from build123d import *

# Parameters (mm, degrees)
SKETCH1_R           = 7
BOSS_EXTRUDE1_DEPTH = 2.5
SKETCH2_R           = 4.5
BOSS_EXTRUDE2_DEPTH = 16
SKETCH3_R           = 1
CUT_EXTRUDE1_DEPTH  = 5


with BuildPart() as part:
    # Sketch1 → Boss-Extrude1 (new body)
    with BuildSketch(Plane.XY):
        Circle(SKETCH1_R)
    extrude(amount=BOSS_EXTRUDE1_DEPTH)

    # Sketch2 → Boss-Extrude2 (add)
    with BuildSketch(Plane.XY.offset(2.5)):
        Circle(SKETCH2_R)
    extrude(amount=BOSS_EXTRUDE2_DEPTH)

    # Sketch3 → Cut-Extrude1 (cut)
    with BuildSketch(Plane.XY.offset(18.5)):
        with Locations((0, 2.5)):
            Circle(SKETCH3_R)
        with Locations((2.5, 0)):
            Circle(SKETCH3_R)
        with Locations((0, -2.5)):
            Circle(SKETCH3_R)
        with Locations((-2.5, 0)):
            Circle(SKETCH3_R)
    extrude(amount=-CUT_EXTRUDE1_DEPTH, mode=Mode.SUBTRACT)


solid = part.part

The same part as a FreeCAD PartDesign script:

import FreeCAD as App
import Part
import Sketcher

V = App.Vector

doc = App.newDocument("Part")
params = doc.addObject("Spreadsheet::Sheet", "Params")
for row, (alias, value) in enumerate([
    ("sketch1_diameter", "14 mm"),
    ("pad1_length", "2.5 mm"),
    ("sketch2_diameter", "9 mm"),
    ("pad2_length", "16 mm"),
    ("sketch3_diameter", "2 mm"),
    ("pocket1_length", "5 mm"),
], start=1):
    params.set(f"A{row}", alias)
    params.set(f"B{row}", "=" + value)
    params.setAlias(f"B{row}", alias)

body = doc.addObject("PartDesign::Body", "Body")

sketch1 = body.newObject("Sketcher::SketchObject", "Sketch")
sketch1.AttachmentSupport = (doc.getObject("XY_Plane"), [""])
sketch1.MapMode = "FlatFace"
sketch1.addGeometry(Part.Circle(V(0, 0, 0), V(0, 0, 1), 7), False)
sketch1.addConstraint([
    Sketcher.Constraint("Coincident", 0, 3, -1, 1),
    Sketcher.Constraint("Diameter", 0, 14.0),
])
sketch1.setExpression("Constraints[1]", "Params.sketch1_diameter")
pad1 = body.newObject("PartDesign::Pad", "Pad")
pad1.Profile = sketch1
pad1.setExpression("Length", "Params.pad1_length")

sketch2 = body.newObject("Sketcher::SketchObject", "Sketch001")
sketch2.AttachmentSupport = (doc.getObject("XY_Plane"), [""])
sketch2.MapMode = "FlatFace"
sketch2.AttachmentOffset = App.Placement(V(0, 0, 2.5), App.Rotation())
sketch2.addGeometry(Part.Circle(V(0, 0, 0), V(0, 0, 1), 4.5), False)
sketch2.addConstraint([
    Sketcher.Constraint("Coincident", 0, 3, -1, 1),
    Sketcher.Constraint("Diameter", 0, 9.0),
])
sketch2.setExpression("Constraints[1]", "Params.sketch2_diameter")
pad2 = body.newObject("PartDesign::Pad", "Pad001")
pad2.Profile = sketch2
pad2.setExpression("Length", "Params.pad2_length")

sketch3 = body.newObject("Sketcher::SketchObject", "Sketch002")
sketch3.AttachmentSupport = (doc.getObject("XY_Plane"), [""])
sketch3.MapMode = "FlatFace"
sketch3.AttachmentOffset = App.Placement(V(0, 0, 18.5), App.Rotation())
sketch3.addGeometry([
    Part.Circle(V(0, 2.5, 0), V(0, 0, 1), 1),
    Part.Circle(V(2.5, 0, 0), V(0, 0, 1), 1),
    Part.Circle(V(0, -2.5, 0), V(0, 0, 1), 1),
    Part.Circle(V(-2.5, 0, 0), V(0, 0, 1), 1),
], False)
sketch3.addConstraint([
    Sketcher.Constraint("Equal", 0, 1),
    Sketcher.Constraint("Equal", 1, 2),
    Sketcher.Constraint("Equal", 2, 3),
    Sketcher.Constraint("Symmetric", 0, 3, 2, 3, -1, 1),
    Sketcher.Constraint("Symmetric", 1, 3, 3, 3, -1, 1),
    Sketcher.Constraint("PointOnObject", 0, 3, -2),
    Sketcher.Constraint("PointOnObject", 1, 3, -1),
    Sketcher.Constraint("Diameter", 0, 2.0),
    Sketcher.Constraint("DistanceY", 2, 3, 0, 3, 5.0),
    Sketcher.Constraint("DistanceX", 3, 3, 1, 3, 5.0),
])
sketch3.setExpression("Constraints[7]", "Params.sketch3_diameter")
pocket1 = body.newObject("PartDesign::Pocket", "Pocket")
pocket1.Profile = sketch3
pocket1.setExpression("Length", "Params.pocket1_length")

doc.recompute()
